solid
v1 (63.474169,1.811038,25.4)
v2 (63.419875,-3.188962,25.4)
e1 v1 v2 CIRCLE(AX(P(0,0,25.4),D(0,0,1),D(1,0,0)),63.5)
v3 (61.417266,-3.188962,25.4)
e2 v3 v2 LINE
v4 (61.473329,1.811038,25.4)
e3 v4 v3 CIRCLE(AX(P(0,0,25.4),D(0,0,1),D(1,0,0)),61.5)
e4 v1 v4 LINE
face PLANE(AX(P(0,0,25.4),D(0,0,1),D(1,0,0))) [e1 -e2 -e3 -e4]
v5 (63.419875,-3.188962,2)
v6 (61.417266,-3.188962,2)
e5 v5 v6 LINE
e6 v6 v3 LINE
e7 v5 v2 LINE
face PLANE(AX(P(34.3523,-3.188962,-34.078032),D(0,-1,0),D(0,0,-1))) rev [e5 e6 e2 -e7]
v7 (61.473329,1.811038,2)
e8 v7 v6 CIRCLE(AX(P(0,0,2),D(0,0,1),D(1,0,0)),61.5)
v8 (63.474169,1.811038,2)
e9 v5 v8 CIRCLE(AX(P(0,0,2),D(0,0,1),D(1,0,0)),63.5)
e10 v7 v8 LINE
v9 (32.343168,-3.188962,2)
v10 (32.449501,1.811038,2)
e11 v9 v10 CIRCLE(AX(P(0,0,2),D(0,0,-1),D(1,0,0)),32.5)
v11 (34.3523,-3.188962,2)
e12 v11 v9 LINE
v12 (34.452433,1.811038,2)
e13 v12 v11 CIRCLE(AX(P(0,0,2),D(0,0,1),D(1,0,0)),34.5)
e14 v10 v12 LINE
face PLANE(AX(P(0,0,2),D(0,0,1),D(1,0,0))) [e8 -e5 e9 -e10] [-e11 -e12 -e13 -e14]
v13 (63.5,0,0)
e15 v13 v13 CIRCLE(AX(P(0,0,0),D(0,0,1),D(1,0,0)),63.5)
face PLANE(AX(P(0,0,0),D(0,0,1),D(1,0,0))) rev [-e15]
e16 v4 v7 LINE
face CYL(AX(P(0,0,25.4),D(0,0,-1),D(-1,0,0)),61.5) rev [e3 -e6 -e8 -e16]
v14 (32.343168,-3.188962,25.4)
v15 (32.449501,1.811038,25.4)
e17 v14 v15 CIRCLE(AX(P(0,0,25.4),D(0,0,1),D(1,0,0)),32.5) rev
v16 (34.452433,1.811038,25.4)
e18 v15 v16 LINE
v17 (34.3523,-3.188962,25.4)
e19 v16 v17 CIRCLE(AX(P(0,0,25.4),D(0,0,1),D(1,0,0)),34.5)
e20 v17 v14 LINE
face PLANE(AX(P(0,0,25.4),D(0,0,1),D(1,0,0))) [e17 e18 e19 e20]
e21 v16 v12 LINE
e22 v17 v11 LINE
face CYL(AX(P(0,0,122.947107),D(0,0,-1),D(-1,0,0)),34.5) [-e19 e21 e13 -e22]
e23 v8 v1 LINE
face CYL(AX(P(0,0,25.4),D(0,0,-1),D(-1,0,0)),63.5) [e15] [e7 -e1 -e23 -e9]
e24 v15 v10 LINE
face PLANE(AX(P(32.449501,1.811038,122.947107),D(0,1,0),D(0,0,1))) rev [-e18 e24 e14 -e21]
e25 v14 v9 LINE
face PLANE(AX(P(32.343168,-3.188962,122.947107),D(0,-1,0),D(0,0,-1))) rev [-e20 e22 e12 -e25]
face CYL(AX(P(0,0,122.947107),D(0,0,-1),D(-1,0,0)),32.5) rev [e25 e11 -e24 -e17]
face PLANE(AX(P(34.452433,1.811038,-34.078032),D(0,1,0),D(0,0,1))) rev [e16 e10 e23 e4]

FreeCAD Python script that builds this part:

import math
import FreeCAD as App
import Part
import Sketcher
from FreeCAD import Vector


def faces_at(feature, points):
    """Names of the faces that lie closest to the given points."""
    faces = feature.Shape.Faces
    near = lambda p: min(range(len(faces)), key=lambda i: faces[i].distToShape(Part.Vertex(*p))[0])
    return sorted({f"Face{near(p) + 1}" for p in points})

doc = App.newDocument("Part")
body = doc.addObject("PartDesign::Body", "Body")

sketch1 = body.newObject("Sketcher::SketchObject", "Sketch")
sketch1.AttachmentSupport = (doc.getObject("XY_Plane"), [""])
sketch1.MapMode = "FlatFace"
sketch1.addGeometry(Part.Circle(Vector(0, 0, 0), Vector(0, 0, 1), 64), False)
sketch1.addConstraint([
    Sketcher.Constraint("Coincident", 0, 3, -1, 1),
    Sketcher.Constraint("Diameter", 0, 127.0),
])
pad1 = body.newObject("PartDesign::Pad", "Pad")
pad1.Profile = sketch1
pad1.Length = 25.4
doc.recompute()

thickness = body.newObject("PartDesign::Thickness", "Thickness")
thickness.Base = (pad1, faces_at(pad1, [(0, 0, 25.4)]))
thickness.Value = 2
thickness.Reversed = True
thickness.Join = "Intersection"

sketch2 = body.newObject("Sketcher::SketchObject", "Sketch001")
sketch2.AttachmentSupport = (doc.getObject("XY_Plane"), [""])
sketch2.MapMode = "FlatFace"
sketch2.AttachmentOffset = App.Placement(Vector(0, 0, 2), App.Rotation())
sketch2.addGeometry([
    Part.LineSegment(Vector(32.4, 1.8, 0), Vector(34.5, 1.8, 0)),
    Part.ArcOfCircle(Part.Circle(Vector(0, 0, 0), Vector(0, 0, 1), 34.5), math.radians(3), math.radians(355)),
    Part.LineSegment(Vector(34.4, -3.2, 0), Vector(32.3, -3.2, 0)),
    Part.ArcOfCircle(Part.Circle(Vector(0, 0, 0), Vector(0, 0, 1), 32.5), math.radians(3), math.radians(354)),
], False)
sketch2.addConstraint([
    Sketcher.Constraint("Coincident", 0, 2, 1, 1),
    Sketcher.Constraint("Coincident", 1, 2, 2, 1),
    Sketcher.Constraint("Coincident", 2, 2, 3, 2),
    Sketcher.Constraint("Coincident", 3, 1, 0, 1),
    Sketcher.Constraint("Horizontal", 0),
    Sketcher.Constraint("Horizontal", 2),
    Sketcher.Constraint("Coincident", 1, 3, -1, 1),
    Sketcher.Constraint("Coincident", 3, 3, -1, 1),
    Sketcher.Constraint("Radius", 1, 34.5),
    Sketcher.Constraint("Radius", 3, 32.5),
    Sketcher.Constraint("DistanceY", 1, 2, 0, 2, 5.0),
    Sketcher.Constraint("DistanceX", -1, 1, 1, 2, 34.3523),
])
pad2 = body.newObject("PartDesign::Pad", "Pad001")
pad2.Profile = sketch2
pad2.Length = 23.4

sketch3 = body.newObject("Sketcher::SketchObject", "Sketch002")
sketch3.AttachmentSupport = (doc.getObject("XY_Plane"), [""])
sketch3.MapMode = "FlatFace"
sketch3.AttachmentOffset = App.Placement(Vector(0, 0, 25.4), App.Rotation())
sketch3.addGeometry([
    Part.LineSegment(Vector(34, -3, 0), Vector(63, -3, 0)),
    Part.LineSegment(Vector(63, -3, 0), Vector(70, -1, 0)),
    Part.LineSegment(Vector(70, -1, 0), Vector(63, 2, 0)),
    Part.LineSegment(Vector(63, 2, 0), Vector(34, 2, 0)),
    Part.LineSegment(Vector(34, 2, 0), Vector(34, -3, 0)),
], False)
sketch3.addConstraint([
    Sketcher.Constraint("Coincident", 0, 2, 1, 1),
    Sketcher.Constraint("Coincident", 1, 2, 2, 1),
    Sketcher.Constraint("Coincident", 2, 2, 3, 1),
    Sketcher.Constraint("Coincident", 3, 2, 4, 1),
    Sketcher.Constraint("Coincident", 4, 2, 0, 1),
    Sketcher.Constraint("Horizontal", 0),
    Sketcher.Constraint("Horizontal", 3),
    Sketcher.Constraint("DistanceY", 0, 2, 2, 2, 5.0),
    Sketcher.Constraint("DistanceY", 0, 2, 1, 2, 2.5),
    Sketcher.Constraint("DistanceX", -1, 1, 4, 2, 34.3523),
    Sketcher.Constraint("Distance", 1, 7.115921),
    Sketcher.Constraint("DistanceX", 0, 1, 0, 2, 29.067575),
    Sketcher.Constraint("DistanceX", 3, 2, 3, 1, 29.021736),
    Sketcher.Constraint("DistanceY", 0, 2, -1, 1, 3.188962),
    Sketcher.Constraint("DistanceX", -1, 1, 2, 2, 63.474169),
])
pocket1 = body.newObject("PartDesign::Pocket", "Pocket")
pocket1.Profile = sketch3
pocket1.Length = 23.4

doc.recompute()
